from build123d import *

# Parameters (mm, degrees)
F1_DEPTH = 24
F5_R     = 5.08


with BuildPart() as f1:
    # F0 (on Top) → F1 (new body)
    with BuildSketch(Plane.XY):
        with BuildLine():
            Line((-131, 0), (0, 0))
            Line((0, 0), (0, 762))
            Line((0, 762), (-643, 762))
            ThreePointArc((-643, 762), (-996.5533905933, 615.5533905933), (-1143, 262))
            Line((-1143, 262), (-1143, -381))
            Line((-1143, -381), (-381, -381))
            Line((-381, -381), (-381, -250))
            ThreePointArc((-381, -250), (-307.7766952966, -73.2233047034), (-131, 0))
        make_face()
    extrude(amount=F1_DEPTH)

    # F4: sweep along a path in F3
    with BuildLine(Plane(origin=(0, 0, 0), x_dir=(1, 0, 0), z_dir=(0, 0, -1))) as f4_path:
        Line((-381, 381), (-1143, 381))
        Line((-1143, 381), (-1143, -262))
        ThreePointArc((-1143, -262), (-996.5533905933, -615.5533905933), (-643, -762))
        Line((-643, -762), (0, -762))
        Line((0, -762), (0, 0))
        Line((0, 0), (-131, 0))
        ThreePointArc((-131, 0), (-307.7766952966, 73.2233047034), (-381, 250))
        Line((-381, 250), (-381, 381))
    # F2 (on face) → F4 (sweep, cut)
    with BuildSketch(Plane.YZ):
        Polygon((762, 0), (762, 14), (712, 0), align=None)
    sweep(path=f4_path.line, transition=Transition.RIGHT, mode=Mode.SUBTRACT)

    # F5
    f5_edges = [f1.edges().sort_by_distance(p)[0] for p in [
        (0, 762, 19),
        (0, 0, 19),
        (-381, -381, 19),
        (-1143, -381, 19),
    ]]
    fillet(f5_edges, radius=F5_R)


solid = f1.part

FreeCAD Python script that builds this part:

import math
import FreeCAD as App
import Part
import Sketcher
Q = App.Units.Quantity


def edges_at(feature, points):
    """Names of the edges that pass closest to the given points."""
    edges = feature.Shape.Edges
    near = lambda p: min(range(len(edges)), key=lambda i: edges[i].distToShape(Part.Vertex(*p))[0])
    return sorted({f"Edge{near(p) + 1}" for p in points})


def add_polygon(sketch, points):
    """Adds a closed chain of lines whose ends are joined by coincident constraints."""
    first, n = sketch.GeometryCount, len(points)
    for a, b in zip(points, points[1:] + points[:1]):
        sketch.addGeometry(Part.LineSegment(App.Vector(*a, 0), App.Vector(*b, 0)), False)
    for i in range(n):
        sketch.addConstraint(Sketcher.Constraint("Coincident", first + i, 2, first + (i + 1) % n, 1))

doc = App.newDocument("Part")
body = doc.addObject("PartDesign::Body", "Body")

# Sketch on XY plane
sketch1 = body.newObject("Sketcher::SketchObject", "Sketch")
sketch1.AttachmentSupport = (doc.getObject("XY_Plane"), [""])
sketch1.MapMode = "FlatFace"
sketch1.addGeometry(Part.LineSegment(App.Vector(-131, 0, 0), App.Vector(0, 0, 0)), False)
sketch1.addGeometry(Part.LineSegment(App.Vector(0, 0, 0), App.Vector(0, 762, 0)), False)
sketch1.addGeometry(Part.LineSegment(App.Vector(0, 762, 0), App.Vector(-643, 762, 0)), False)
sketch1.addGeometry(Part.ArcOfCircle(Part.Circle(App.Vector(-643, 262, 0), App.Vector(0, 0, 1), 500), math.radians(90), math.radians(180)), False)
sketch1.addGeometry(Part.LineSegment(App.Vector(-1143, 262, 0), App.Vector(-1143, -381, 0)), False)
sketch1.addGeometry(Part.LineSegment(App.Vector(-1143, -381, 0), App.Vector(-381, -381, 0)), False)
sketch1.addGeometry(Part.LineSegment(App.Vector(-381, -381, 0), App.Vector(-381, -250, 0)), False)
sketch1.addGeometry(Part.ArcOfCircle(Part.Circle(App.Vector(-131, -250, 0), App.Vector(0, 0, 1), 250), math.radians(90), math.radians(180)), False)
sketch1.addConstraint(Sketcher.Constraint("Coincident", 0, 2, 1, 1))
sketch1.addConstraint(Sketcher.Constraint("Coincident", 1, 2, 2, 1))
sketch1.addConstraint(Sketcher.Constraint("Tangent", 2, 2, 3, 1))
sketch1.addConstraint(Sketcher.Constraint("Tangent", 3, 2, 4, 1))
sketch1.addConstraint(Sketcher.Constraint("Coincident", 4, 2, 5, 1))
sketch1.addConstraint(Sketcher.Constraint("Coincident", 5, 2, 6, 1))
sketch1.addConstraint(Sketcher.Constraint("Tangent", 6, 2, 7, 2))
sketch1.addConstraint(Sketcher.Constraint("Tangent", 7, 1, 0, 1))
sketch1.addConstraint(Sketcher.Constraint("Horizontal", 0))
sketch1.addConstraint(Sketcher.Constraint("Vertical", 1))
sketch1.addConstraint(Sketcher.Constraint("Horizontal", 2))
sketch1.addConstraint(Sketcher.Constraint("Vertical", 4))
sketch1.addConstraint(Sketcher.Constraint("Horizontal", 5))
sketch1.addConstraint(Sketcher.Constraint("Vertical", 6))
sketch1.addConstraint(Sketcher.Constraint("Coincident", 0, 2, -1, 1))
sketch1.addConstraint(Sketcher.Constraint("Equal", 5, 1))
sketch1.addConstraint(Sketcher.Constraint("Equal", 2, 4))
sketch1.addConstraint(Sketcher.Constraint("Radius", 3, Q("500 mm")))
sketch1.addConstraint(Sketcher.Constraint("Radius", 7, Q("250 mm")))
sketch1.addConstraint(Sketcher.Constraint("DistanceX", 0, 1, 0, 2, Q("131 mm")))
sketch1.addConstraint(Sketcher.Constraint("DistanceX", 2, 2, 2, 1, Q("643 mm")))
pad1 = body.newObject("PartDesign::Pad", "Pad")
pad1.Profile = sketch1
pad1.Length = 24

# Sketch on YZ plane
sketch2 = body.newObject("Sketcher::SketchObject", "Sketch001")
sketch2.AttachmentSupport = (doc.getObject("YZ_Plane"), [""])
sketch2.MapMode = "FlatFace"
add_polygon(sketch2, [(762, 0), (762, 14), (712, 0)])  # lines 0-2
sketch2.addConstraint(Sketcher.Constraint("Vertical", 0))
sketch2.addConstraint(Sketcher.Constraint("Horizontal", 2))
sketch2.addConstraint(Sketcher.Constraint("PointOnObject", 1, 2, -1))
sketch2.addConstraint(Sketcher.Constraint("DistanceX", 2, 1, 2, 2, Q("50 mm")))
sketch2.addConstraint(Sketcher.Constraint("DistanceY", 0, 1, 0, 2, Q("14 mm")))
sketch2.addConstraint(Sketcher.Constraint("DistanceX", -1, 1, 0, 2, Q("762 mm")))

# Sketch on XY plane
sketch3 = body.newObject("Sketcher::SketchObject", "Sketch002")
sketch3.AttachmentSupport = (doc.getObject("XY_Plane"), [""])
sketch3.MapMode = "FlatFace"
sketch3.addGeometry(Part.LineSegment(App.Vector(-381, -381, 0), App.Vector(-1143, -381, 0)), False)
sketch3.addGeometry(Part.LineSegment(App.Vector(-1143, -381, 0), App.Vector(-1143, 262, 0)), False)
sketch3.addGeometry(Part.ArcOfCircle(Part.Circle(App.Vector(-643, 262, 0), App.Vector(0, 0, 1), 500), math.radians(90), math.radians(180)), False)
sketch3.addGeometry(Part.LineSegment(App.Vector(-643, 762, 0), App.Vector(0, 762, 0)), False)
sketch3.addGeometry(Part.LineSegment(App.Vector(0, 762, 0), App.Vector(0, 0, 0)), False)
sketch3.addGeometry(Part.LineSegment(App.Vector(0, 0, 0), App.Vector(-131, 0, 0)), False)
sketch3.addGeometry(Part.ArcOfCircle(Part.Circle(App.Vector(-131, -250, 0), App.Vector(0, 0, 1), 250), math.radians(90), math.radians(180)), False)
sketch3.addGeometry(Part.LineSegment(App.Vector(-381, -250, 0), App.Vector(-381, -381, 0)), False)
sketch3.addConstraint(Sketcher.Constraint("Coincident", 0, 2, 1, 1))
sketch3.addConstraint(Sketcher.Constraint("Tangent", 1, 2, 2, 2))
sketch3.addConstraint(Sketcher.Constraint("Tangent", 2, 1, 3, 1))
sketch3.addConstraint(Sketcher.Constraint("Coincident", 3, 2, 4, 1))
sketch3.addConstraint(Sketcher.Constraint("Coincident", 4, 2, 5, 1))
sketch3.addConstraint(Sketcher.Constraint("Tangent", 5, 2, 6, 1))
sketch3.addConstraint(Sketcher.Constraint("Tangent", 6, 2, 7, 1))
sketch3.addConstraint(Sketcher.Constraint("Coincident", 7, 2, 0, 1))
sketch3.addConstraint(Sketcher.Constraint("Horizontal", 0))
sketch3.addConstraint(Sketcher.Constraint("Vertical", 1))
sketch3.addConstraint(Sketcher.Constraint("Horizontal", 3))
sketch3.addConstraint(Sketcher.Constraint("Vertical", 4))
sketch3.addConstraint(Sketcher.Constraint("Horizontal", 5))
sketch3.addConstraint(Sketcher.Constraint("Vertical", 7))
sketch3.addConstraint(Sketcher.Constraint("Coincident", 4, 2, -1, 1))
sketch3.addConstraint(Sketcher.Constraint("Equal", 3, 1))
sketch3.addConstraint(Sketcher.Constraint("Equal", 0, 4))
sketch3.addConstraint(Sketcher.Constraint("Radius", 2, Q("500 mm")))
sketch3.addConstraint(Sketcher.Constraint("Radius", 6, Q("250 mm")))
sketch3.addConstraint(Sketcher.Constraint("DistanceX", 0, 2, 0, 1, Q("762 mm")))
sketch3.addConstraint(Sketcher.Constraint("DistanceX", 3, 1, 3, 2, Q("643 mm")))
doc.recompute()

subtractivepipe = body.newObject("PartDesign::SubtractivePipe", "SubtractivePipe")
subtractivepipe.Profile = sketch2
subtractivepipe.Spine = (sketch3, ["Edge1", "Edge2", "Edge3", "Edge4", "Edge5", "Edge6", "Edge7", "Edge8"])
subtractivepipe.Transition = "Right corner"
doc.recompute()

fillet = body.newObject("PartDesign::Fillet", "Fillet")
fillet.Base = (subtractivepipe, edges_at(subtractivepipe, [
    (0, 762, 19),
    (0, 0, 19),
    (-381, -381, 19),
    (-1143, -381, 19),
]))
fillet.Radius = 5.08

doc.recompute()
